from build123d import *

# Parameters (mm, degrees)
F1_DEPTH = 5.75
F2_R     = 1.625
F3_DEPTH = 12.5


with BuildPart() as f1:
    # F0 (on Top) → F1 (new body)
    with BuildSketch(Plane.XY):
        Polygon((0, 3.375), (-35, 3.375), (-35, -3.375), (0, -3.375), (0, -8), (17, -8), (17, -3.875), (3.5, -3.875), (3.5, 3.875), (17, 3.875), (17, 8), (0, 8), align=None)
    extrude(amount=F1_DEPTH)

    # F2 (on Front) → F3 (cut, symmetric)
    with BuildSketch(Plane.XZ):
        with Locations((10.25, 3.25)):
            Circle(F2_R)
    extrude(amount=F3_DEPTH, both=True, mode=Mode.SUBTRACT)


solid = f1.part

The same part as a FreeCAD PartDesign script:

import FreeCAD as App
import Part
import Sketcher
Q = App.Units.Quantity


def add_polygon(sketch, points):
    """Adds a closed chain of lines whose ends are joined by coincident constraints."""
    first, n = sketch.GeometryCount, len(points)
    for a, b in zip(points, points[1:] + points[:1]):
        sketch.addGeometry(Part.LineSegment(App.Vector(*a, 0), App.Vector(*b, 0)), False)
    for i in range(n):
        sketch.addConstraint(Sketcher.Constraint("Coincident", first + i, 2, first + (i + 1) % n, 1))

doc = App.newDocument("Part")
body = doc.addObject("PartDesign::Body", "Body")

# Sketch on XY plane
sketch1 = body.newObject("Sketcher::SketchObject", "Sketch")
sketch1.AttachmentSupport = (doc.getObject("XY_Plane"), [""])
sketch1.MapMode = "FlatFace"
add_polygon(sketch1, [(0, 3.4), (-35, 3.4), (-35, -3.4), (0, -3.4), (0, -8), (17, -8), (17, -3.9), (3.5, -3.9), (3.5, 3.9), (17, 3.9), (17, 8), (0, 8)])  # lines 0-11
sketch1.addConstraint([
    Sketcher.Constraint("Horizontal", 0),
    Sketcher.Constraint("Vertical", 1),
    Sketcher.Constraint("Horizontal", 2),
    Sketcher.Constraint("Vertical", 3),
    Sketcher.Constraint("Horizontal", 4),
    Sketcher.Constraint("Vertical", 5),
    Sketcher.Constraint("Horizontal", 6),
    Sketcher.Constraint("Vertical", 7),
    Sketcher.Constraint("Horizontal", 8),
    Sketcher.Constraint("Vertical", 9),
    Sketcher.Constraint("Horizontal", 10),
    Sketcher.Constraint("Vertical", 11),
    Sketcher.Constraint("Symmetric", 3, 2, 10, 2, -1, 1),
    Sketcher.Constraint("Symmetric", 5, 2, 8, 2, -1),
    Sketcher.Constraint("Symmetric", 2, 2, 11, 2, -1),
    Sketcher.Constraint("DistanceX", 0, 2, 0, 1, Q("35 mm")),
    Sketcher.Constraint("DistanceX", 4, 1, 4, 2, Q("17 mm")),
    Sketcher.Constraint("DistanceX", 6, 2, 6, 1, Q("13.5 mm")),
    Sketcher.Constraint("DistanceY", 3, 2, -1, 1, Q("8 mm")),
    Sketcher.Constraint("DistanceY", 1, 2, 1, 1, Q("6.75 mm")),
    Sketcher.Constraint("DistanceY", 7, 1, 7, 2, Q("7.75 mm")),
])
pad1 = body.newObject("PartDesign::Pad", "Pad")
pad1.Profile = sketch1
pad1.Length = 5.75

# Sketch on XZ plane
sketch2 = body.newObject("Sketcher::SketchObject", "Sketch001")
sketch2.AttachmentSupport = (doc.getObject("XZ_Plane"), [""])
sketch2.MapMode = "FlatFace"
sketch2.addGeometry(Part.Circle(App.Vector(10.2, 3.2, 0), App.Vector(0, 0, 1), 1.6), False)
sketch2.addConstraint([
    Sketcher.Constraint("Diameter", 0, Q("3.25 mm")),
    Sketcher.Constraint("DistanceX", -1, 1, 0, 3, Q("10.25 mm")),
    Sketcher.Constraint("DistanceY", -1, 1, 0, 3, Q("3.25 mm")),
])
pocket1 = body.newObject("PartDesign::Pocket", "Pocket")
pocket1.Profile = sketch2
pocket1.Length = 25
pocket1.Midplane = True

doc.recompute()
